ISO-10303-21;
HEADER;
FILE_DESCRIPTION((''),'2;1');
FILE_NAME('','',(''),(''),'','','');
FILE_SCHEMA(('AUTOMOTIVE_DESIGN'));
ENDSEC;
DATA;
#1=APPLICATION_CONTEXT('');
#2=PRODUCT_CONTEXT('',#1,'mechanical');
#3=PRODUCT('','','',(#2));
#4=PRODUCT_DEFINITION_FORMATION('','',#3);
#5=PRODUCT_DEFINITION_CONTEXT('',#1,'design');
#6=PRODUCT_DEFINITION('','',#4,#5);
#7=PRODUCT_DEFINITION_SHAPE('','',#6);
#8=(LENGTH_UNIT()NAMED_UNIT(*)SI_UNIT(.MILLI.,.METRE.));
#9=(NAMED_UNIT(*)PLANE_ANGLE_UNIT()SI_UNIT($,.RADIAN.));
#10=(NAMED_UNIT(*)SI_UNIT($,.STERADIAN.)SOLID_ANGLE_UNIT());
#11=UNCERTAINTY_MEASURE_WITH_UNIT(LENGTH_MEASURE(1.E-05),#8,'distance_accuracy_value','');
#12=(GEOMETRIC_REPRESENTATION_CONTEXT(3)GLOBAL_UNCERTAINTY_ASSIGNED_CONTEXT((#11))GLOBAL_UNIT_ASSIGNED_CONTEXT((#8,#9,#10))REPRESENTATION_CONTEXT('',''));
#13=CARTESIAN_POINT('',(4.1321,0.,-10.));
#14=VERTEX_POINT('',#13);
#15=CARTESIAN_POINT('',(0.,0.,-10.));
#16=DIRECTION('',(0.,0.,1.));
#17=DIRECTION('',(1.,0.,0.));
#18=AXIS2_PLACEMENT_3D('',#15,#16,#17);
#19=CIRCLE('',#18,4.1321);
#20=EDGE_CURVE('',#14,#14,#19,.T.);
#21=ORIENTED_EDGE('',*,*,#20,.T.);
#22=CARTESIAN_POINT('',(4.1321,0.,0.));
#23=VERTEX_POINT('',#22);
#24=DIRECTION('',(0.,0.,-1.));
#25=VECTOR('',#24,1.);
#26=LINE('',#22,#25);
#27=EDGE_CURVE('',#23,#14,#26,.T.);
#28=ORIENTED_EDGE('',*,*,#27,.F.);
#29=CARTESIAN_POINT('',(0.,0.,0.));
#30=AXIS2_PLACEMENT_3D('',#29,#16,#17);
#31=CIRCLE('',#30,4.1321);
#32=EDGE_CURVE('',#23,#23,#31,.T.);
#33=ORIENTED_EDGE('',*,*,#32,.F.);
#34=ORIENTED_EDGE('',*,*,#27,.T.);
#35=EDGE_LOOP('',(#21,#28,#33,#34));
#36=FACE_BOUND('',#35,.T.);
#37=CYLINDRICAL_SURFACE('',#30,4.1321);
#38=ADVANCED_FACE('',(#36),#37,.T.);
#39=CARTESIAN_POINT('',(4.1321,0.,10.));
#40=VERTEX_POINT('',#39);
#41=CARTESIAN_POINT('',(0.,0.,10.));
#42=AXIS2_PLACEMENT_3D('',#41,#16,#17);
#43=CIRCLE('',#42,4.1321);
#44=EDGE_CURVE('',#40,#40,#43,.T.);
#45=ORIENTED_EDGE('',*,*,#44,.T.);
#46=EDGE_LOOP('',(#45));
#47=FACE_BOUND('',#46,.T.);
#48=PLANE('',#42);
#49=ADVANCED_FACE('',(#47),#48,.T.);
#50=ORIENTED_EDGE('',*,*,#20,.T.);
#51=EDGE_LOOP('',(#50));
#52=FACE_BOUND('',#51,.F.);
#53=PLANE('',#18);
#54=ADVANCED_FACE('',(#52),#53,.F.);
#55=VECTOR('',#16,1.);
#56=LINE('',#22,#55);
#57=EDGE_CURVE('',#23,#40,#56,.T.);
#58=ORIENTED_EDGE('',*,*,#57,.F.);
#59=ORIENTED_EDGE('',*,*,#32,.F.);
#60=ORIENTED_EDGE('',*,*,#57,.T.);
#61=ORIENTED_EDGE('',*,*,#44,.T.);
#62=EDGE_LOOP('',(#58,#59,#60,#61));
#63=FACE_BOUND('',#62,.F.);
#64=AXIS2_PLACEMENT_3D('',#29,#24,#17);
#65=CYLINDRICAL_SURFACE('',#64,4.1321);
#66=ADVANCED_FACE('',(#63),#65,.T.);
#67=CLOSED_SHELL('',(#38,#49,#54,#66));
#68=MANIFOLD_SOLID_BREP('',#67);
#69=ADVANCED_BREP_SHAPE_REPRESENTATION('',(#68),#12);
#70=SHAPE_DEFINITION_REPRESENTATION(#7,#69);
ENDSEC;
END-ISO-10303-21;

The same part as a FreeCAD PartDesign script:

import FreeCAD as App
import Part
import Sketcher
Q = App.Units.Quantity

doc = App.newDocument("Part")
body = doc.addObject("PartDesign::Body", "Body")

sketch1 = body.newObject("Sketcher::SketchObject", "Sketch")
sketch1.AttachmentSupport = (doc.getObject("XY_Plane"), [""])
sketch1.MapMode = "FlatFace"
sketch1.addGeometry(Part.Circle(App.Vector(0, 0, 0), App.Vector(0, 0, 1), 4.1), False)
sketch1.addConstraint(Sketcher.Constraint("Coincident", 0, 3, -1, 1))
sketch1.addConstraint(Sketcher.Constraint("Diameter", 0, Q("8.2642 mm")))
pad1 = body.newObject("PartDesign::Pad", "Pad")
pad1.Profile = sketch1
pad1.Length = 20
pad1.Midplane = True

doc.recompute()
